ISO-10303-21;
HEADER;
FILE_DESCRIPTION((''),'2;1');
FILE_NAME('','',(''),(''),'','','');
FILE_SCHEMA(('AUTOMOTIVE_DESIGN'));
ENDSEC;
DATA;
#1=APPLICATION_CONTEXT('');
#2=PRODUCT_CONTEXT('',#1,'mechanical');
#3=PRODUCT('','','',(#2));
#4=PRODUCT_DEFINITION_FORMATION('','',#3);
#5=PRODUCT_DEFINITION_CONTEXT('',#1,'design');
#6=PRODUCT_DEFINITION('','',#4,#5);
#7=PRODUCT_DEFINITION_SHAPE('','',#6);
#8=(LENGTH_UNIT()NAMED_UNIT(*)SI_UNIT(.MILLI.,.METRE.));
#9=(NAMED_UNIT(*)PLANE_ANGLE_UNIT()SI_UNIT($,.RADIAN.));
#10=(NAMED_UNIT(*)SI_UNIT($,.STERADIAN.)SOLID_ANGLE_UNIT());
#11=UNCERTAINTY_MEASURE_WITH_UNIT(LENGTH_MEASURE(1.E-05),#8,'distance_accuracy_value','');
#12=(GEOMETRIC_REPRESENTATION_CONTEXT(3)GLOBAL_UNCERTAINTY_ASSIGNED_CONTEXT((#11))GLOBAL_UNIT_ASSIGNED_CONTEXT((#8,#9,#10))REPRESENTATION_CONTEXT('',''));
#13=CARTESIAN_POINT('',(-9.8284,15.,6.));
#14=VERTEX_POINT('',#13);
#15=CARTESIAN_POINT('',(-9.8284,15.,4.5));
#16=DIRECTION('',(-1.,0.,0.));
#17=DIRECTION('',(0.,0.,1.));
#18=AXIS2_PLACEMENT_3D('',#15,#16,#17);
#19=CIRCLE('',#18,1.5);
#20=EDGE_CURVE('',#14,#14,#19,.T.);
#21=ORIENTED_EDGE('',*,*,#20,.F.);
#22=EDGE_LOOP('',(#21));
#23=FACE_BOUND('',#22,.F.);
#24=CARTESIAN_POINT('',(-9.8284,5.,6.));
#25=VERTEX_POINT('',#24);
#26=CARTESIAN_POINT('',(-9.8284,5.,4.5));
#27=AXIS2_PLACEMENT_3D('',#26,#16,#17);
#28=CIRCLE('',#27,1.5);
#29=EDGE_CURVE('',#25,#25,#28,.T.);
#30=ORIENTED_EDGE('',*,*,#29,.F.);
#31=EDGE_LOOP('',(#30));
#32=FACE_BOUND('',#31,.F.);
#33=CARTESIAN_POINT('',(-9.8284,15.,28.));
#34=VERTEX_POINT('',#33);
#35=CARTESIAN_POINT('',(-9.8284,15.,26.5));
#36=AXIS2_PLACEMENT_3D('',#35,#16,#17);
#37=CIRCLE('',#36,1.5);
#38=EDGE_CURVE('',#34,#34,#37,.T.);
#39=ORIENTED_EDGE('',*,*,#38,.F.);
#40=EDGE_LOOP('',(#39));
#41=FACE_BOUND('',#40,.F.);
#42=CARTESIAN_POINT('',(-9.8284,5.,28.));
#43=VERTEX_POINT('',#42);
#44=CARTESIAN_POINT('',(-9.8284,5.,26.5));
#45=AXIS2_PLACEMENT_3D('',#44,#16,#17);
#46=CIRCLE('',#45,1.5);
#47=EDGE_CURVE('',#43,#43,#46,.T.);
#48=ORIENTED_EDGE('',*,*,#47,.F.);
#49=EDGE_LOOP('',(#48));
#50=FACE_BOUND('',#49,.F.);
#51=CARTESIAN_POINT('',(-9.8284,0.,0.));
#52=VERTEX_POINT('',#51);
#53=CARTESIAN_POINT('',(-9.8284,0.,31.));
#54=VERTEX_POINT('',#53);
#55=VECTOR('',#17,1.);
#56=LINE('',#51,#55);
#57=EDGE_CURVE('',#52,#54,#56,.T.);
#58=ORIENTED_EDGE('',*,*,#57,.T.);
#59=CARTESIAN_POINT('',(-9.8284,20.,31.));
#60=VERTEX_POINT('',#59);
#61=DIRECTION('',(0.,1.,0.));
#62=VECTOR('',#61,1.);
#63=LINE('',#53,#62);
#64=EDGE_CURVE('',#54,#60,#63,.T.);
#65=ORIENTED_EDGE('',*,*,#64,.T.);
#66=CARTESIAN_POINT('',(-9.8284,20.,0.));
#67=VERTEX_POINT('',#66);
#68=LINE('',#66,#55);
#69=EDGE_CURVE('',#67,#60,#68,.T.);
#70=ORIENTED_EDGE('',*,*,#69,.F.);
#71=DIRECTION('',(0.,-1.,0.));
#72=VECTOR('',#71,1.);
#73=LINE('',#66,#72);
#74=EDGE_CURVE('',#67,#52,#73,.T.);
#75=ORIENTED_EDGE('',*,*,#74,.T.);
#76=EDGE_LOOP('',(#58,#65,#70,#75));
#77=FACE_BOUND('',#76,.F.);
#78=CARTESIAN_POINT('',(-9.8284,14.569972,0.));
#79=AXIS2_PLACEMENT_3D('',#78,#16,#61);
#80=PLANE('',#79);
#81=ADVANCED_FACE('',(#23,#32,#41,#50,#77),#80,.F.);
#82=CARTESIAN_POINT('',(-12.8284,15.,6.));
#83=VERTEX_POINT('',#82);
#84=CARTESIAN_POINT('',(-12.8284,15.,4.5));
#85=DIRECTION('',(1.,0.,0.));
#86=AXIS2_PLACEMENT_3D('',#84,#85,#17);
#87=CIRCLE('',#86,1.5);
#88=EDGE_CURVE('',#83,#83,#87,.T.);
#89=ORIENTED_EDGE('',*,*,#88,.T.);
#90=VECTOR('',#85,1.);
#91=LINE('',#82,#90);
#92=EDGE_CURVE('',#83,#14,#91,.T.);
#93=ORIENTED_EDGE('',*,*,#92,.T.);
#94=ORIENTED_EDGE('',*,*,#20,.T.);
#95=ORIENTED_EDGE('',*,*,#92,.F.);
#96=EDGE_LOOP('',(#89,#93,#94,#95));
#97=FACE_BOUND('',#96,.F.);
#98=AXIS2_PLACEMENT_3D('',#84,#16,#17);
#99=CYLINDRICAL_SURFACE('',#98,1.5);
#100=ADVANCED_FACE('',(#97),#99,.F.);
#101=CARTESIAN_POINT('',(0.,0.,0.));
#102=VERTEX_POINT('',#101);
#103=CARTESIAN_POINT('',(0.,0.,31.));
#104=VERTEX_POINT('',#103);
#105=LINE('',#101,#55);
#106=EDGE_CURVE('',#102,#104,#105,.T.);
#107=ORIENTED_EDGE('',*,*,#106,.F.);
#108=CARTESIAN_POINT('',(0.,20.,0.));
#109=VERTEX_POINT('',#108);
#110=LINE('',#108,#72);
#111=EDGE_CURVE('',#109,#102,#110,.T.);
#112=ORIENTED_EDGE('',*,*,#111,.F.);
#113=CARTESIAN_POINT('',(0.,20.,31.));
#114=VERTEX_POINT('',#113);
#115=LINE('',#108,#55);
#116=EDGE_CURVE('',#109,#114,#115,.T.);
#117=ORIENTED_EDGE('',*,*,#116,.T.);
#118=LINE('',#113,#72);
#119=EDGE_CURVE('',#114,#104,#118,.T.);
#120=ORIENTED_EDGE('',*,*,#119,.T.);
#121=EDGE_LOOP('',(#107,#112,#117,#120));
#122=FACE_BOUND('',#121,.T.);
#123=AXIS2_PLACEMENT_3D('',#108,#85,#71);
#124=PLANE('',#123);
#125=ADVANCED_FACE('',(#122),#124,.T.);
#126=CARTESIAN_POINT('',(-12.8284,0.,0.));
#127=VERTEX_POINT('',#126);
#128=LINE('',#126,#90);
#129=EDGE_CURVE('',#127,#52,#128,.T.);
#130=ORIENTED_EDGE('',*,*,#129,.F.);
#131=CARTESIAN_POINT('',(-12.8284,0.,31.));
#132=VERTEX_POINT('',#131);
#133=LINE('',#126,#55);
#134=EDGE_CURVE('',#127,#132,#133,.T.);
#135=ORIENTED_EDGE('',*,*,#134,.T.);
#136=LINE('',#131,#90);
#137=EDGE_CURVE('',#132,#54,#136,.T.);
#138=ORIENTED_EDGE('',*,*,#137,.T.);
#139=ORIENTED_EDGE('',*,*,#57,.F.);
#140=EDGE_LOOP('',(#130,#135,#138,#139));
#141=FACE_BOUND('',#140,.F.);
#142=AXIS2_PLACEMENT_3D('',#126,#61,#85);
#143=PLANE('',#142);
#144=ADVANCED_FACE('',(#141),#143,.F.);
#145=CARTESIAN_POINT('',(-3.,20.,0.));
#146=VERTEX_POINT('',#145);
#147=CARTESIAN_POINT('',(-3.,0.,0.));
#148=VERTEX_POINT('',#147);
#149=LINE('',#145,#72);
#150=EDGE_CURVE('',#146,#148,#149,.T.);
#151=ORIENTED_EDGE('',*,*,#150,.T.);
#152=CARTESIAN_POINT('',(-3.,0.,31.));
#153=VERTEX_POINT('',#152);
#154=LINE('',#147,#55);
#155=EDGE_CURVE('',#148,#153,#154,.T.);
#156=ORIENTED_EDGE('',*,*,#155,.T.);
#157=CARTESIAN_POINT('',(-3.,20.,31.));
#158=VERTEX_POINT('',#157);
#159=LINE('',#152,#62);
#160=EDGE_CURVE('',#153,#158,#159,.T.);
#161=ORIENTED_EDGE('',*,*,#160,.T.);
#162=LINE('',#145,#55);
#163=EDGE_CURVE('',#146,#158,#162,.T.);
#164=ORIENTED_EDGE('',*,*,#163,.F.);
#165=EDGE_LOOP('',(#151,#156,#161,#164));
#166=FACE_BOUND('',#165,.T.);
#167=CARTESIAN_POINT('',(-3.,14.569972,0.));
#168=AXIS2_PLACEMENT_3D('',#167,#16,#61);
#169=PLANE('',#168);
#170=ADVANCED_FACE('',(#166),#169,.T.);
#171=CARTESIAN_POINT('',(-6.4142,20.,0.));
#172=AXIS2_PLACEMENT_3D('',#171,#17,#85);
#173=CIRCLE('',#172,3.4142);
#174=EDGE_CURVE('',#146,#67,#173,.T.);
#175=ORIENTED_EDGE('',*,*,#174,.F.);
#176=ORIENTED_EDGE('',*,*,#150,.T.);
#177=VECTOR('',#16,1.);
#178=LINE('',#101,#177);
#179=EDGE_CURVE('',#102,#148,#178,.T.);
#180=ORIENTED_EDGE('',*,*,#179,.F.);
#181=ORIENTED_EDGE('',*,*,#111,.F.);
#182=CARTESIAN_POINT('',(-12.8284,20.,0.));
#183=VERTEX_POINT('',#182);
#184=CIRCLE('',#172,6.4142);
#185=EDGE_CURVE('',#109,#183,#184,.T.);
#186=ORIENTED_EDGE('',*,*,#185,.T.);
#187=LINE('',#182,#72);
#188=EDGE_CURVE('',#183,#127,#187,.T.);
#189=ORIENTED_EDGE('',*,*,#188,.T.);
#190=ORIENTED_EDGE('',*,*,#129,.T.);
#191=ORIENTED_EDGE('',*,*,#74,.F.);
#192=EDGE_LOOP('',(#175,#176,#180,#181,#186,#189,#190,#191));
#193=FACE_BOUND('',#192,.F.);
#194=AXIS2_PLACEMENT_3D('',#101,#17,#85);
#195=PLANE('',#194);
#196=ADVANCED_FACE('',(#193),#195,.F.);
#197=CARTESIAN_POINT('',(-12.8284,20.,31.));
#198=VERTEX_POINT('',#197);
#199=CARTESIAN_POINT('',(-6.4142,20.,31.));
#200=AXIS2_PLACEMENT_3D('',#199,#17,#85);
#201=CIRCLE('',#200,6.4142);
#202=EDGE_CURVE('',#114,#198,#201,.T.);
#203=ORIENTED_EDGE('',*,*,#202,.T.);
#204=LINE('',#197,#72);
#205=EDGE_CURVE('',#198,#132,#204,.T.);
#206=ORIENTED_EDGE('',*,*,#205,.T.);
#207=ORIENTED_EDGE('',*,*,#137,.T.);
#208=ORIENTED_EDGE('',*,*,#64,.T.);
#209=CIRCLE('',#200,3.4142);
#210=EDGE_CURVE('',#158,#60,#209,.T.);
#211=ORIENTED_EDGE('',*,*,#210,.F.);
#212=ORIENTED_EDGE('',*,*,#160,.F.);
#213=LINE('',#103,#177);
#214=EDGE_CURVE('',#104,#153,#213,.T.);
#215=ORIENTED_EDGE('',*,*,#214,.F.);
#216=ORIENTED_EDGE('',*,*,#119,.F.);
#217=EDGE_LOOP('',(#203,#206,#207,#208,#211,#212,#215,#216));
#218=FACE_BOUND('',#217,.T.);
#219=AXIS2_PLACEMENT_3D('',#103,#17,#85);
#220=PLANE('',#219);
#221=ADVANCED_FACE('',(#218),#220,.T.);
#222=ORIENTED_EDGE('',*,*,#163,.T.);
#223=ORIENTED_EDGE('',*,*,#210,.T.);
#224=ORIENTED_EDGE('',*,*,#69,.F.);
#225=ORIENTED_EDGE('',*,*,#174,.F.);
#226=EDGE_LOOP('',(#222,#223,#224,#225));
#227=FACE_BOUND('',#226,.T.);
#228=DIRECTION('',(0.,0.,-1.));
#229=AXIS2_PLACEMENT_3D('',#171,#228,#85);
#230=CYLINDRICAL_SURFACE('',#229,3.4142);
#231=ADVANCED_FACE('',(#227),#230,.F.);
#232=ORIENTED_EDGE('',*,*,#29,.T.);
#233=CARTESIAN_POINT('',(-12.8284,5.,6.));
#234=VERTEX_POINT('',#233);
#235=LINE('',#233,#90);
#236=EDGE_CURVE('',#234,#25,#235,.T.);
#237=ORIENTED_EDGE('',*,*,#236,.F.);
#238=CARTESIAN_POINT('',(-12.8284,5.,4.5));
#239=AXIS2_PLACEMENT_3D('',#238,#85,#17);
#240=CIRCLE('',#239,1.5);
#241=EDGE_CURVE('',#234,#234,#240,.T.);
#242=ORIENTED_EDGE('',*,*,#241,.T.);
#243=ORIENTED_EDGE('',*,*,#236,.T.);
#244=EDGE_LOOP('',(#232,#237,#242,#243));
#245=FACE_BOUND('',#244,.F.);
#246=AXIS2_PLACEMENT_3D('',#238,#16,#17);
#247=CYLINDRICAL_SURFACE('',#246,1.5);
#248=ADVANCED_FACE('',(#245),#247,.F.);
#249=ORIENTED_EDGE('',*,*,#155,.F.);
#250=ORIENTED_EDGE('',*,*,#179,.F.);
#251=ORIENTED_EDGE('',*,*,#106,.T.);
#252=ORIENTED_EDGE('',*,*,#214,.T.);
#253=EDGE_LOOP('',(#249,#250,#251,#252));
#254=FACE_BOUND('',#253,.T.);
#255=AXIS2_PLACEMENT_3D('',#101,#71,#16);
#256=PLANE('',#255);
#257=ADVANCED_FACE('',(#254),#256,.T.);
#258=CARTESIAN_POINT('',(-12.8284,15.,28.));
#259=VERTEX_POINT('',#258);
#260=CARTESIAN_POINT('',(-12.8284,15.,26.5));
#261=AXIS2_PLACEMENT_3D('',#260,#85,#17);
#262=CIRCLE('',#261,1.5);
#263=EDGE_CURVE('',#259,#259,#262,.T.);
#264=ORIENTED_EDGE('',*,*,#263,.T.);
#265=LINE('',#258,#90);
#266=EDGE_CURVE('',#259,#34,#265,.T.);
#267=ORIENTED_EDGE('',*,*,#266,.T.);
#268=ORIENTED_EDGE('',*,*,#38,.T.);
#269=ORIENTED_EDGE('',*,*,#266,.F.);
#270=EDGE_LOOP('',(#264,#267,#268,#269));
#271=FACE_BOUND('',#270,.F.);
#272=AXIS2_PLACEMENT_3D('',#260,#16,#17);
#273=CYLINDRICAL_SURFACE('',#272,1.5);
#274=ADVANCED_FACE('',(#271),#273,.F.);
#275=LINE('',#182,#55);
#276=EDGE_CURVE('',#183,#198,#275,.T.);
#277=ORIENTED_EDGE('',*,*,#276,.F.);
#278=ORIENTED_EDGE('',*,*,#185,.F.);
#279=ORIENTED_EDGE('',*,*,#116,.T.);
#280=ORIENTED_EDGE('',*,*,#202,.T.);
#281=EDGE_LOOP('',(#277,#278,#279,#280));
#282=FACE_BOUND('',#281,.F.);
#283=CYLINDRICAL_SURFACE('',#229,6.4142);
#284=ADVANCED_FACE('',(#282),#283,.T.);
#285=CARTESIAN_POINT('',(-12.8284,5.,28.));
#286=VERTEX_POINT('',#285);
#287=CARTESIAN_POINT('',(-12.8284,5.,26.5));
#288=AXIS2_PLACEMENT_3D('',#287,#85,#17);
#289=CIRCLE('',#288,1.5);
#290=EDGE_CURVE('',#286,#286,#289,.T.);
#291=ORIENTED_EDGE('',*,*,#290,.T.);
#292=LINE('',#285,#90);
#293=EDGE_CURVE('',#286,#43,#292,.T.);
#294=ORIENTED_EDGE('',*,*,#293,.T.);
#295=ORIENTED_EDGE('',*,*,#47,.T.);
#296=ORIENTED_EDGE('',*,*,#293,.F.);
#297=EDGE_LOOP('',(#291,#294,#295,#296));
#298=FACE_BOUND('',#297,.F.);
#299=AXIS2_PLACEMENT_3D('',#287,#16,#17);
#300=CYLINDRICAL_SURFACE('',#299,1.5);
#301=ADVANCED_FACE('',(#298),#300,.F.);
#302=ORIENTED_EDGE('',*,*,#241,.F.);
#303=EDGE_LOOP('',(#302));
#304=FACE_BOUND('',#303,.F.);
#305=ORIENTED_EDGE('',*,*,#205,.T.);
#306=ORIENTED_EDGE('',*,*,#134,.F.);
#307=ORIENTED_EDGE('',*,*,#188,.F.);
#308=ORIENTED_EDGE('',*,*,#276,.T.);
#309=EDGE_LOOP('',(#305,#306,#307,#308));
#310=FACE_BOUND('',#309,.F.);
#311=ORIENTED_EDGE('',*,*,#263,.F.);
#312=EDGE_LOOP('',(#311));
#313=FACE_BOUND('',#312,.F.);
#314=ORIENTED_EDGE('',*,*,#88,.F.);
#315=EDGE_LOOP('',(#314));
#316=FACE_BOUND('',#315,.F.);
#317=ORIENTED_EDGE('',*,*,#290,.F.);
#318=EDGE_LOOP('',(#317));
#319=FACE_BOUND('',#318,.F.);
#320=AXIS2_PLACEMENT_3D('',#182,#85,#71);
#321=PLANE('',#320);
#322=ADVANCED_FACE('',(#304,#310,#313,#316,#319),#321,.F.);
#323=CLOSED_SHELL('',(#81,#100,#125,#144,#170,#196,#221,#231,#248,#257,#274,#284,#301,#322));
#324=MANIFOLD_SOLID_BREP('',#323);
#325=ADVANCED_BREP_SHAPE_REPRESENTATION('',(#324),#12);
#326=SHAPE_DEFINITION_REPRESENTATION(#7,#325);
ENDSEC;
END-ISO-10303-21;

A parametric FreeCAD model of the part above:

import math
import FreeCAD as App
import Part
import Sketcher

doc = App.newDocument("Part")
body = doc.addObject("PartDesign::Body", "Body")

# Sketch on XY plane
sketch1 = body.newObject("Sketcher::SketchObject", "Sketch")
sketch1.AttachmentSupport = (doc.getObject("XY_Plane"), [""])
sketch1.MapMode = "FlatFace"
sketch1.addGeometry(Part.LineSegment(App.Vector(-3, 20, 0), App.Vector(-3, 0, 0)), False)
sketch1.addGeometry(Part.LineSegment(App.Vector(-3, 0, 0), App.Vector(0, 0, 0)), False)
sketch1.addGeometry(Part.LineSegment(App.Vector(0, 0, 0), App.Vector(0, 20, 0)), False)
sketch1.addGeometry(Part.ArcOfCircle(Part.Circle(App.Vector(-6.4, 20, 0), App.Vector(0, 0, 1), 6.4), math.radians(0), math.radians(180)), False)
sketch1.addGeometry(Part.LineSegment(App.Vector(-12.8, 20, 0), App.Vector(-12.8, 0, 0)), False)
sketch1.addGeometry(Part.LineSegment(App.Vector(-12.8, 0, 0), App.Vector(-9.8, 0, 0)), False)
sketch1.addGeometry(Part.LineSegment(App.Vector(-9.8, 0, 0), App.Vector(-9.8, 20, 0)), False)
sketch1.addGeometry(Part.ArcOfCircle(Part.Circle(App.Vector(-6.4, 20, 0), App.Vector(0, 0, 1), 3.4), math.radians(0), math.radians(180)), False)
sketch1.addConstraint(Sketcher.Constraint("Coincident", 0, 2, 1, 1))
sketch1.addConstraint(Sketcher.Constraint("Coincident", 1, 2, 2, 1))
sketch1.addConstraint(Sketcher.Constraint("Tangent", 2, 2, 3, 1))
sketch1.addConstraint(Sketcher.Constraint("Tangent", 3, 2, 4, 1))
sketch1.addConstraint(Sketcher.Constraint("Coincident", 4, 2, 5, 1))
sketch1.addConstraint(Sketcher.Constraint("Coincident", 5, 2, 6, 1))
sketch1.addConstraint(Sketcher.Constraint("Tangent", 6, 2, 7, 2))
sketch1.addConstraint(Sketcher.Constraint("Tangent", 7, 1, 0, 1))
sketch1.addConstraint(Sketcher.Constraint("Vertical", 0))
sketch1.addConstraint(Sketcher.Constraint("Horizontal", 1))
sketch1.addConstraint(Sketcher.Constraint("Vertical", 2))
sketch1.addConstraint(Sketcher.Constraint("Vertical", 4))
sketch1.addConstraint(Sketcher.Constraint("Horizontal", 5))
sketch1.addConstraint(Sketcher.Constraint("Vertical", 6))
sketch1.addConstraint(Sketcher.Constraint("Coincident", 1, 2, -1, 1))
sketch1.addConstraint(Sketcher.Constraint("Coincident", 7, 3, 3, 3))
sketch1.addConstraint(Sketcher.Constraint("PointOnObject", 4, 2, -1))
sketch1.addConstraint(Sketcher.Constraint("DistanceX", 1, 1, 1, 2, 3.0))
sketch1.addConstraint(Sketcher.Constraint("DistanceY", 0, 2, 0, 1, 20.0))
sketch1.addConstraint(Sketcher.Constraint("Radius", 3, 6.4142))
pad1 = body.newObject("PartDesign::Pad", "Pad")
pad1.Profile = sketch1
pad1.Length = 31

# Sketch on YZ plane
sketch2 = body.newObject("Sketcher::SketchObject", "Sketch001")
sketch2.AttachmentSupport = (doc.getObject("YZ_Plane"), [""])
sketch2.MapMode = "FlatFace"
sketch2.AttachmentOffset = App.Placement(App.Vector(0, 0, -12.8284), App.Rotation())
sketch2.addGeometry(Part.Circle(App.Vector(5, 26.5, 0), App.Vector(0, 0, 1), 1.5), False)
sketch2.addGeometry(Part.Circle(App.Vector(5, 4.5, 0), App.Vector(0, 0, 1), 1.5), False)
sketch2.addGeometry(Part.Circle(App.Vector(15, 4.5, 0), App.Vector(0, 0, 1), 1.5), False)
sketch2.addGeometry(Part.Circle(App.Vector(15, 26.5, 0), App.Vector(0, 0, 1), 1.5), False)
sketch2.addConstraint(Sketcher.Constraint("Equal", 0, 1))
sketch2.addConstraint(Sketcher.Constraint("Equal", 1, 2))
sketch2.addConstraint(Sketcher.Constraint("Equal", 2, 3))
sketch2.addConstraint(Sketcher.Constraint("Horizontal", 1, 3, 2, 3))
sketch2.addConstraint(Sketcher.Constraint("Horizontal", 0, 3, 3, 3))
sketch2.addConstraint(Sketcher.Constraint("Vertical", 0, 3, 1, 3))
sketch2.addConstraint(Sketcher.Constraint("Vertical", 2, 3, 3, 3))
sketch2.addConstraint(Sketcher.Constraint("Diameter", 0, 3.0))
sketch2.addConstraint(Sketcher.Constraint("DistanceX", -1, 1, 0, 3, 5.0))
sketch2.addConstraint(Sketcher.Constraint("DistanceX", -1, 1, 2, 3, 15.0))
sketch2.addConstraint(Sketcher.Constraint("DistanceY", 1, 3, 0, 3, 22.0))
sketch2.addConstraint(Sketcher.Constraint("DistanceY", -1, 1, 0, 3, 26.5))
pocket1 = body.newObject("PartDesign::Pocket", "Pocket")
pocket1.Profile = sketch2
pocket1.Length = 3
pocket1.Reversed = True

doc.recompute()
